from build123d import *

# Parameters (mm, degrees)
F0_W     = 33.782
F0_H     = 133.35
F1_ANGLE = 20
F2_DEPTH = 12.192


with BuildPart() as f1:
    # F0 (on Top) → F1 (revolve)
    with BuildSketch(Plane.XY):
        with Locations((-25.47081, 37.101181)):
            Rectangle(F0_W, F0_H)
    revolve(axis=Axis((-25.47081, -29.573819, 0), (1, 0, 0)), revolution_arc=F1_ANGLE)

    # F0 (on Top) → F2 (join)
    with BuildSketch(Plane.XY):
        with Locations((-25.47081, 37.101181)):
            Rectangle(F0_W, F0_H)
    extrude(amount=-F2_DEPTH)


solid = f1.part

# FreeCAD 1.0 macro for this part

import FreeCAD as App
import Part
import Sketcher
Q = App.Units.Quantity


def add_polygon(sketch, points):
    """Adds a closed chain of lines whose ends are joined by coincident constraints."""
    first, n = sketch.GeometryCount, len(points)
    for a, b in zip(points, points[1:] + points[:1]):
        sketch.addGeometry(Part.LineSegment(App.Vector(*a, 0), App.Vector(*b, 0)), False)
    for i in range(n):
        sketch.addConstraint(Sketcher.Constraint("Coincident", first + i, 2, first + (i + 1) % n, 1))

doc = App.newDocument("Part")
params = doc.addObject("Spreadsheet::Sheet", "Params")
for row, (alias, value) in enumerate([
    ("sketch1_width", "1.33 in"),
    ("sketch1_height", "5.25 in"),
    ("revolution_angle", "20 deg"),
    ("sketch2_width", "1.33 in"),
    ("sketch2_height", "5.25 in"),
    ("pad1_length", "0.48 in"),
], start=1):
    params.set(f"A{row}", alias)
    params.set(f"B{row}", "=" + value)
    params.setAlias(f"B{row}", alias)

body = doc.addObject("PartDesign::Body", "Body")

# Sketch on XY plane
sketch1 = body.newObject("Sketcher::SketchObject", "Sketch")
sketch1.AttachmentSupport = (doc.getObject("XY_Plane"), [""])
sketch1.MapMode = "FlatFace"
add_polygon(sketch1, [(-42, 104), (-42, -30), (-9, -30), (-9, 104)])  # lines 0-3
sketch1.addGeometry(Part.LineSegment(App.Vector(-42, -30, 0), App.Vector(-9, -30, 0)), True)  # axis
sketch1.addConstraint([
    Sketcher.Constraint("Vertical", 0),
    Sketcher.Constraint("Horizontal", 1),
    Sketcher.Constraint("Vertical", 2),
    Sketcher.Constraint("Horizontal", 3),
    Sketcher.Constraint("Horizontal", 4),
    Sketcher.Constraint("Coincident", 4, 1, 0, 2),
    Sketcher.Constraint("Vertical", 2, 2, 4, 2),
    Sketcher.Constraint("DistanceX", 1, 1, 1, 2, Q("1.33 in")),
    Sketcher.Constraint("DistanceY", 0, 2, 0, 1, Q("5.25 in")),
    Sketcher.Constraint("DistanceX", 0, 2, -1, 1, 42.36181),
    Sketcher.Constraint("DistanceY", 0, 2, -1, 1, 29.573819),
])
sketch1.setExpression("Constraints[11]", "Params.sketch1_width")
sketch1.setExpression("Constraints[12]", "Params.sketch1_height")
revolution = body.newObject("PartDesign::Revolution", "Revolution")
revolution.Profile = sketch1
revolution.ReferenceAxis = (sketch1, ["Axis0"])
revolution.setExpression("Angle", "Params.revolution_angle")

# Sketch on XY plane
sketch2 = body.newObject("Sketcher::SketchObject", "Sketch001")
sketch2.AttachmentSupport = (doc.getObject("XY_Plane"), [""])
sketch2.MapMode = "FlatFace"
add_polygon(sketch2, [(-42, 104), (-42, -30), (-9, -30), (-9, 104)])  # lines 0-3
sketch2.addConstraint([
    Sketcher.Constraint("Vertical", 0),
    Sketcher.Constraint("Horizontal", 1),
    Sketcher.Constraint("Vertical", 2),
    Sketcher.Constraint("Horizontal", 3),
    Sketcher.Constraint("DistanceX", 1, 1, 1, 2, Q("1.33 in")),
    Sketcher.Constraint("DistanceY", 0, 2, 0, 1, Q("5.25 in")),
    Sketcher.Constraint("DistanceX", 0, 2, -1, 1, 42.36181),
    Sketcher.Constraint("DistanceY", 0, 2, -1, 1, 29.573819),
])
sketch2.setExpression("Constraints[8]", "Params.sketch2_width")
sketch2.setExpression("Constraints[9]", "Params.sketch2_height")
pad1 = body.newObject("PartDesign::Pad", "Pad")
pad1.Profile = sketch2
pad1.setExpression("Length", "Params.pad1_length")
pad1.Reversed = True

doc.recompute()
